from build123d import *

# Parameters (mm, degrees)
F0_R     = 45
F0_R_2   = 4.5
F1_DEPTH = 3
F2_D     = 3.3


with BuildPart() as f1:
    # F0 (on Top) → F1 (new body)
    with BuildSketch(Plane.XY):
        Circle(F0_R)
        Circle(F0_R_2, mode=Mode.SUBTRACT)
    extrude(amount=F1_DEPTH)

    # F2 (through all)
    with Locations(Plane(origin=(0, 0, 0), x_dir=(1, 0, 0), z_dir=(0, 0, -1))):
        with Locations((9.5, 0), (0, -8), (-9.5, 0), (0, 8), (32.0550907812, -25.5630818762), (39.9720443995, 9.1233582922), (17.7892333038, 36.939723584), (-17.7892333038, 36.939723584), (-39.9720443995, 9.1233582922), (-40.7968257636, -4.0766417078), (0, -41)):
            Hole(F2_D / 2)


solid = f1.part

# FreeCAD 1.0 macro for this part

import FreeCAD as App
import Part
import Sketcher

doc = App.newDocument("Part")
body = doc.addObject("PartDesign::Body", "Body")

sketch1 = body.newObject("Sketcher::SketchObject", "Sketch")
sketch1.AttachmentSupport = (doc.getObject("XY_Plane"), [""])
sketch1.MapMode = "FlatFace"
sketch1.addGeometry(Part.Circle(App.Vector(0, 0, 0), App.Vector(0, 0, 1), 45), False)
sketch1.addGeometry(Part.Circle(App.Vector(0, 0, 0), App.Vector(0, 0, 1), 4.5), False)
sketch1.addConstraint(Sketcher.Constraint("Coincident", 0, 3, -1, 1))
sketch1.addConstraint(Sketcher.Constraint("Coincident", 1, 3, -1, 1))
sketch1.addConstraint(Sketcher.Constraint("Diameter", 0, 90.0))
sketch1.addConstraint(Sketcher.Constraint("Diameter", 1, 9.0))
pad1 = body.newObject("PartDesign::Pad", "Pad")
pad1.Profile = sketch1
pad1.Length = 3

sketch2 = body.newObject("Sketcher::SketchObject", "Sketch001")
sketch2.AttachmentSupport = (doc.getObject("XY_Plane"), [""])
sketch2.MapMode = "FlatFace"
sketch2.addGeometry(Part.Circle(App.Vector(9.5, 0, 0), App.Vector(0, 0, 1), 1.6), False)
sketch2.addGeometry(Part.Circle(App.Vector(0, 8, 0), App.Vector(0, 0, 1), 1.6), False)
sketch2.addGeometry(Part.Circle(App.Vector(-9.5, 0, 0), App.Vector(0, 0, 1), 1.6), False)
sketch2.addGeometry(Part.Circle(App.Vector(0, -8, 0), App.Vector(0, 0, 1), 1.6), False)
sketch2.addGeometry(Part.Circle(App.Vector(32.1, 25.6, 0), App.Vector(0, 0, 1), 1.6), False)
sketch2.addGeometry(Part.Circle(App.Vector(40, -9.1, 0), App.Vector(0, 0, 1), 1.6), False)
sketch2.addGeometry(Part.Circle(App.Vector(17.8, -36.9, 0), App.Vector(0, 0, 1), 1.6), False)
sketch2.addGeometry(Part.Circle(App.Vector(-17.8, -36.9, 0), App.Vector(0, 0, 1), 1.6), False)
sketch2.addGeometry(Part.Circle(App.Vector(-40, -9.1, 0), App.Vector(0, 0, 1), 1.6), False)
sketch2.addGeometry(Part.Circle(App.Vector(-40.8, 4.1, 0), App.Vector(0, 0, 1), 1.6), False)
sketch2.addGeometry(Part.Circle(App.Vector(0, 41, 0), App.Vector(0, 0, 1), 1.6), False)
sketch2.addConstraint(Sketcher.Constraint("Equal", 0, 1))
sketch2.addConstraint(Sketcher.Constraint("Equal", 1, 2))
sketch2.addConstraint(Sketcher.Constraint("Equal", 2, 3))
sketch2.addConstraint(Sketcher.Constraint("Equal", 3, 4))
sketch2.addConstraint(Sketcher.Constraint("Equal", 4, 5))
sketch2.addConstraint(Sketcher.Constraint("Equal", 5, 6))
sketch2.addConstraint(Sketcher.Constraint("Equal", 6, 7))
sketch2.addConstraint(Sketcher.Constraint("Equal", 7, 8))
sketch2.addConstraint(Sketcher.Constraint("Equal", 8, 9))
sketch2.addConstraint(Sketcher.Constraint("Equal", 9, 10))
sketch2.addConstraint(Sketcher.Constraint("Symmetric", 0, 3, 2, 3, -1, 1))
sketch2.addConstraint(Sketcher.Constraint("Symmetric", 1, 3, 3, 3, -1, 1))
sketch2.addConstraint(Sketcher.Constraint("Symmetric", 6, 3, 7, 3, -2))
sketch2.addConstraint(Sketcher.Constraint("Symmetric", 5, 3, 8, 3, -2))
sketch2.addConstraint(Sketcher.Constraint("PointOnObject", 0, 3, -1))
sketch2.addConstraint(Sketcher.Constraint("PointOnObject", 1, 3, -2))
sketch2.addConstraint(Sketcher.Constraint("PointOnObject", 10, 3, -2))
sketch2.addConstraint(Sketcher.Constraint("Diameter", 0, 3.3))
sketch2.addConstraint(Sketcher.Constraint("DistanceY", -1, 1, 1, 3, 8.0))
sketch2.addConstraint(Sketcher.Constraint("DistanceY", -1, 1, 10, 3, 41.0))
sketch2.addConstraint(Sketcher.Constraint("DistanceX", 2, 3, 0, 3, 19.0))
sketch2.addConstraint(Sketcher.Constraint("DistanceY", 8, 3, 9, 3, 13.2))
sketch2.addConstraint(Sketcher.Constraint("DistanceX", -1, 1, 4, 3, 32.055091))
sketch2.addConstraint(Sketcher.Constraint("DistanceY", -1, 1, 4, 3, 25.563082))
sketch2.addConstraint(Sketcher.Constraint("DistanceY", 5, 3, -1, 1, 9.123358))
sketch2.addConstraint(Sketcher.Constraint("DistanceX", 6, 3, 5, 3, 22.182811))
sketch2.addConstraint(Sketcher.Constraint("DistanceX", 9, 3, 8, 3, 0.824781))
sketch2.addConstraint(Sketcher.Constraint("DistanceX", -1, 1, 5, 3, 39.972044))
sketch2.addConstraint(Sketcher.Constraint("DistanceY", 6, 3, -1, 1, 36.939724))
doc.recompute()
hole = body.newObject("PartDesign::Hole", "Hole")
hole.Profile = sketch2
hole.ThreadType = "None"
hole.Diameter = 3.3
hole.DepthType = "ThroughAll"
hole.Reversed = True

doc.recompute()
